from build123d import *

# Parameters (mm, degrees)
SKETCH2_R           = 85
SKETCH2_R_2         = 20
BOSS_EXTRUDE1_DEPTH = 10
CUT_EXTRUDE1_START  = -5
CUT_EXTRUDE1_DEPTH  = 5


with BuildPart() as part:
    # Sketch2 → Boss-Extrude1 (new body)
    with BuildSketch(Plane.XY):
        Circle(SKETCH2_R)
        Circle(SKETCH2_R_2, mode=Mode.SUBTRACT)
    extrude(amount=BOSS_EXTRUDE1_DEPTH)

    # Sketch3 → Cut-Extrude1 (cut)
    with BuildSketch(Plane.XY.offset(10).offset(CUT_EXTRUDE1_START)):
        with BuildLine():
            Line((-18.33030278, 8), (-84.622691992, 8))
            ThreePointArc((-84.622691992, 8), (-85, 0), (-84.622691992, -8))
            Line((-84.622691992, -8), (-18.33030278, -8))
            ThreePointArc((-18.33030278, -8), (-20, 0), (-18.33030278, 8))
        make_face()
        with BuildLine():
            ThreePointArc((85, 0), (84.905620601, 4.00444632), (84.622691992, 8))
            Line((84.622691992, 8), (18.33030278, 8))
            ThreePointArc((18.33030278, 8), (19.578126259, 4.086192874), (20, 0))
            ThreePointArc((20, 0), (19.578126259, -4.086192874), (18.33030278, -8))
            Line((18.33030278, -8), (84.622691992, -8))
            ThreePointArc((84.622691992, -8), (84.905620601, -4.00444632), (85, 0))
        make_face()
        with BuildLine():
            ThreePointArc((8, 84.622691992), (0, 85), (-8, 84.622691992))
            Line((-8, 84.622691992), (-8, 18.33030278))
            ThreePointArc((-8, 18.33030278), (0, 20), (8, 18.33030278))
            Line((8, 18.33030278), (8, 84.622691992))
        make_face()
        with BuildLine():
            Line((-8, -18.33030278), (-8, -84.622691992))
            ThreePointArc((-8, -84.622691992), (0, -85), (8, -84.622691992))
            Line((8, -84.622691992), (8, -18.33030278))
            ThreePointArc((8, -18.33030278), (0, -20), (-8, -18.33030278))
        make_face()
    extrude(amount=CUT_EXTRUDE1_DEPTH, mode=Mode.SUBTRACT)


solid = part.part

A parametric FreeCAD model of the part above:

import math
import FreeCAD as App
import Part
import Sketcher
from FreeCAD import Vector

doc = App.newDocument("Part")
params = doc.addObject("Spreadsheet::Sheet", "Params")
for row, (alias, value) in enumerate([
    ("sketch1_diameter", "170 mm"),
    ("sketch1_diameter2", "40 mm"),
    ("pad1_length", "10 mm"),
    ("sketch2_radius", "85 mm"),
    ("sketch2_radius2", "20 mm"),
    ("pocket1_length", "5 mm"),
], start=1):
    params.set(f"A{row}", alias)
    params.set(f"B{row}", "=" + value)
    params.setAlias(f"B{row}", alias)

body = doc.addObject("PartDesign::Body", "Body")

# Sketch on XY plane
sketch1 = body.newObject("Sketcher::SketchObject", "Sketch")
sketch1.AttachmentSupport = (doc.getObject("XY_Plane"), [""])
sketch1.MapMode = "FlatFace"
sketch1.addGeometry([
    Part.Circle(Vector(0, 0, 0), Vector(0, 0, 1), 85),
    Part.Circle(Vector(0, 0, 0), Vector(0, 0, 1), 20),
], False)
sketch1.addConstraint([
    Sketcher.Constraint("Coincident", 0, 3, -1, 1),
    Sketcher.Constraint("Coincident", 1, 3, -1, 1),
    Sketcher.Constraint("Diameter", 0, 170.0),
    Sketcher.Constraint("Diameter", 1, 40.0),
])
sketch1.setExpression("Constraints[2]", "Params.sketch1_diameter")
sketch1.setExpression("Constraints[3]", "Params.sketch1_diameter2")
pad1 = body.newObject("PartDesign::Pad", "Pad")
pad1.Profile = sketch1
pad1.setExpression("Length", "Params.pad1_length")

# Sketch on XY plane
sketch2 = body.newObject("Sketcher::SketchObject", "Sketch001")
sketch2.AttachmentSupport = (doc.getObject("XY_Plane"), [""])
sketch2.MapMode = "FlatFace"
sketch2.AttachmentOffset = App.Placement(Vector(0, 0, 5), App.Rotation())
sketch2.addGeometry([
    Part.LineSegment(Vector(-18, 8, 0), Vector(-85, 8, 0)),  # 0
    Part.ArcOfCircle(Part.Circle(Vector(0, 0, 0), Vector(0, 0, 1), 85), math.radians(174.6), math.radians(185.4)),  # 1
    Part.LineSegment(Vector(-85, -8, 0), Vector(-18, -8, 0)),  # 2
    Part.ArcOfCircle(Part.Circle(Vector(0, 0, 0), Vector(0, 0, 1), 20), math.radians(156), math.radians(204)),  # 3
    Part.ArcOfCircle(Part.Circle(Vector(0, 0, 0), Vector(0, 0, 1), 85), math.radians(0), math.radians(5.4)),  # 4
    Part.LineSegment(Vector(85, 8, 0), Vector(18, 8, 0)),  # 5
    Part.ArcOfCircle(Part.Circle(Vector(0, 0, 0), Vector(0, 0, 1), 20), math.radians(0), math.radians(24)),  # 6
    Part.ArcOfCircle(Part.Circle(Vector(0, 0, 0), Vector(0, 0, 1), 20), math.radians(-24), math.radians(0)),  # 7
    Part.LineSegment(Vector(18, -8, 0), Vector(85, -8, 0)),  # 8
    Part.ArcOfCircle(Part.Circle(Vector(0, 0, 0), Vector(0, 0, 1), 85), math.radians(-5.4), math.radians(0)),  # 9
    Part.ArcOfCircle(Part.Circle(Vector(0, 0, 0), Vector(0, 0, 1), 85), math.radians(84.6), math.radians(95.4)),  # 10
    Part.LineSegment(Vector(-8, 85, 0), Vector(-8, 18, 0)),  # 11
    Part.ArcOfCircle(Part.Circle(Vector(0, 0, 0), Vector(0, 0, 1), 20), math.radians(66), math.radians(114)),  # 12
    Part.LineSegment(Vector(8, 18, 0), Vector(8, 85, 0)),  # 13
    Part.LineSegment(Vector(-8, -18, 0), Vector(-8, -85, 0)),  # 14
    Part.ArcOfCircle(Part.Circle(Vector(0, 0, 0), Vector(0, 0, 1), 85), math.radians(-95.4), math.radians(-84.6)),  # 15
    Part.LineSegment(Vector(8, -85, 0), Vector(8, -18, 0)),  # 16
    Part.ArcOfCircle(Part.Circle(Vector(0, 0, 0), Vector(0, 0, 1), 20), math.radians(-114), math.radians(-66)),  # 17
], False)
sketch2.addConstraint([
    Sketcher.Constraint("Coincident", 0, 2, 1, 1),
    Sketcher.Constraint("Coincident", 1, 2, 2, 1),
    Sketcher.Constraint("Coincident", 2, 2, 3, 2),
    Sketcher.Constraint("Coincident", 3, 1, 0, 1),
    Sketcher.Constraint("Coincident", 4, 2, 5, 1),
    Sketcher.Constraint("Coincident", 5, 2, 6, 2),
    Sketcher.Constraint("Tangent", 6, 1, 7, 2),
    Sketcher.Constraint("Coincident", 7, 1, 8, 1),
    Sketcher.Constraint("Coincident", 8, 2, 9, 1),
    Sketcher.Constraint("Tangent", 9, 2, 4, 1),
    Sketcher.Constraint("Coincident", 10, 2, 11, 1),
    Sketcher.Constraint("Coincident", 11, 2, 12, 2),
    Sketcher.Constraint("Coincident", 12, 1, 13, 1),
    Sketcher.Constraint("Coincident", 13, 2, 10, 1),
    Sketcher.Constraint("Coincident", 14, 2, 15, 1),
    Sketcher.Constraint("Coincident", 15, 2, 16, 1),
    Sketcher.Constraint("Coincident", 16, 2, 17, 2),
    Sketcher.Constraint("Coincident", 17, 1, 14, 1),
    Sketcher.Constraint("Horizontal", 0),
    Sketcher.Constraint("Horizontal", 2),
    Sketcher.Constraint("Horizontal", 5),
    Sketcher.Constraint("Horizontal", 8),
    Sketcher.Constraint("Vertical", 11),
    Sketcher.Constraint("Vertical", 13),
    Sketcher.Constraint("Vertical", 14),
    Sketcher.Constraint("Vertical", 16),
    Sketcher.Constraint("Coincident", 1, 3, -1, 1),
    Sketcher.Constraint("Coincident", 3, 3, -1, 1),
    Sketcher.Constraint("Coincident", 4, 3, -1, 1),
    Sketcher.Constraint("Coincident", 6, 3, -1, 1),
    Sketcher.Constraint("Coincident", 10, 3, -1, 1),
    Sketcher.Constraint("Coincident", 12, 3, -1, 1),
    Sketcher.Constraint("Coincident", 15, 3, -1, 1),
    Sketcher.Constraint("Coincident", 17, 3, -1, 1),
    Sketcher.Constraint("Equal", 1, 4),
    Sketcher.Constraint("Equal", 3, 6),
    Sketcher.Constraint("Equal", 6, 7),
    Sketcher.Constraint("Equal", 4, 9),
    Sketcher.Constraint("Equal", 9, 10),
    Sketcher.Constraint("Equal", 7, 12),
    Sketcher.Constraint("Equal", 10, 15),
    Sketcher.Constraint("Equal", 12, 17),
    Sketcher.Constraint("PointOnObject", 6, 1, -1),
    Sketcher.Constraint("PointOnObject", 9, 2, -1),
    Sketcher.Constraint("Horizontal", 3, 1, 4, 2),
    Sketcher.Constraint("Horizontal", 2, 2, 7, 1),
    Sketcher.Constraint("Horizontal", 11, 2, 12, 1),
    Sketcher.Constraint("Horizontal", 14, 2, 15, 2),
    Sketcher.Constraint("Vertical", 0, 2, 1, 2),
    Sketcher.Constraint("Vertical", 11, 2, 14, 2),
    Sketcher.Constraint("Equal", 8, 11),
    Sketcher.Constraint("Radius", 1, 85.0),
    Sketcher.Constraint("Radius", 3, 20.0),
    Sketcher.Constraint("DistanceY", -1, 1, 0, 2, 8.0),
])
sketch2.setExpression("Constraints[51]", "Params.sketch2_radius")
sketch2.setExpression("Constraints[52]", "Params.sketch2_radius2")
pocket1 = body.newObject("PartDesign::Pocket", "Pocket")
pocket1.Profile = sketch2
pocket1.setExpression("Length", "Params.pocket1_length")
pocket1.Reversed = True

doc.recompute()
